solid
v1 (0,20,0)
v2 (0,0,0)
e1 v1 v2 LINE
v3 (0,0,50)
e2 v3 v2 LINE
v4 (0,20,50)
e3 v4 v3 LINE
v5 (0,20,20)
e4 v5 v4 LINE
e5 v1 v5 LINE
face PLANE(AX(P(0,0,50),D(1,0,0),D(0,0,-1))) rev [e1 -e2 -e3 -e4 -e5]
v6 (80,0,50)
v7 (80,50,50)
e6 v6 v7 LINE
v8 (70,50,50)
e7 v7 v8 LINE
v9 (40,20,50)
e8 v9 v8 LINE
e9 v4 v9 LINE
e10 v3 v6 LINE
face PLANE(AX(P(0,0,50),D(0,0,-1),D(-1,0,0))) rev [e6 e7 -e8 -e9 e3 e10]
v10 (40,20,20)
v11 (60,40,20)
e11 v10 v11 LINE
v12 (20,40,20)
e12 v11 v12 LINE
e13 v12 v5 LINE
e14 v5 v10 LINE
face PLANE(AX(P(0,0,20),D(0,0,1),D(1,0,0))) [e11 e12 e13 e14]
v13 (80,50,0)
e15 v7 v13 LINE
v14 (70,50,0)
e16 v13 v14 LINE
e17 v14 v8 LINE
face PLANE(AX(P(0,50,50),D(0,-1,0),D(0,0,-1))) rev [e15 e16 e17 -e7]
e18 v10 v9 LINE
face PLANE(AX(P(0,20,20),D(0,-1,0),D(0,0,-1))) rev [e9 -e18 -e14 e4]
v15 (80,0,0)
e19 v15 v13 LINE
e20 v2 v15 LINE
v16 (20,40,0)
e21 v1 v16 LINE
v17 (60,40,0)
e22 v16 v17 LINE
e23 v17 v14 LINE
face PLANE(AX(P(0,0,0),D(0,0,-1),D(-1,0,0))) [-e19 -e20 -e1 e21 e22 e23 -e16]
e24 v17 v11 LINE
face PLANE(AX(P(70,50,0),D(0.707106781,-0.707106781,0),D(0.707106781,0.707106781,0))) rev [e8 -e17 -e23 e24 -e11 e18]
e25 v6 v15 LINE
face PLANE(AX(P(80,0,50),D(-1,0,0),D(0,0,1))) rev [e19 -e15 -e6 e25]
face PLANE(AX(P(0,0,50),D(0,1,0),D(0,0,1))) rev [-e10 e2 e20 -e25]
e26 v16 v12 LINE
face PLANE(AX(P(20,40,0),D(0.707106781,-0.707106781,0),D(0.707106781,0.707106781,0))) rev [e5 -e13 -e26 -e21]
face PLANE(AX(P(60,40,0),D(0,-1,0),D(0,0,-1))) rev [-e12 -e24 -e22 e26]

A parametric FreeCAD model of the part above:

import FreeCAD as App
import Part
import Sketcher
from FreeCAD import Vector
Q = App.Units.Quantity

doc = App.newDocument("Part")
body = doc.addObject("PartDesign::Body", "Body")

sketch1 = doc.addObject("Sketcher::SketchObject", "Sketch")
body.addObject(sketch1)
sketch1.AttachmentSupport = (doc.XY_Plane, [""])
sketch1.MapMode = "FlatFace"
sketch1.addGeometry(Part.LineSegment(Vector(0, 50, 0), Vector(0, 0, 0)), False)
sketch1.addGeometry(Part.LineSegment(Vector(0, 0, 0), Vector(80, 0, 0)), False)
sketch1.addGeometry(Part.LineSegment(Vector(80, 0, 0), Vector(80, 50, 0)), False)
sketch1.addGeometry(Part.LineSegment(Vector(80, 50, 0), Vector(0, 50, 0)), False)
sketch1.addConstraint(Sketcher.Constraint("Coincident", 0, 2, 1, 1))
sketch1.addConstraint(Sketcher.Constraint("Coincident", 1, 2, 2, 1))
sketch1.addConstraint(Sketcher.Constraint("Coincident", 2, 2, 3, 1))
sketch1.addConstraint(Sketcher.Constraint("Coincident", 3, 2, 0, 1))
sketch1.addConstraint(Sketcher.Constraint("Vertical", 0))
sketch1.addConstraint(Sketcher.Constraint("Horizontal", 1))
sketch1.addConstraint(Sketcher.Constraint("Vertical", 2))
sketch1.addConstraint(Sketcher.Constraint("Horizontal", 3))
sketch1.addConstraint(Sketcher.Constraint("Coincident", 0, 2, -1, 1))
sketch1.addConstraint(Sketcher.Constraint("DistanceX", 1, 1, 1, 2, 80.0))
sketch1.addConstraint(Sketcher.Constraint("DistanceY", 0, 2, 0, 1, 50.0))
pad1 = doc.addObject("PartDesign::Pad", "Pad")
body.addObject(pad1)
pad1.Profile = sketch1
pad1.Length = 50

sketch2 = doc.addObject("Sketcher::SketchObject", "Sketch001")
body.addObject(sketch2)
sketch2.AttachmentSupport = (doc.XY_Plane, [""])
sketch2.MapMode = "FlatFace"
sketch2.AttachmentOffset = App.Placement(Vector(0, 0, 50), App.Rotation())
sketch2.addGeometry(Part.LineSegment(Vector(60, 40, 0), Vector(70, 50, 0)), False)
sketch2.addGeometry(Part.LineSegment(Vector(70, 50, 0), Vector(0, 50, 0)), False)
sketch2.addGeometry(Part.LineSegment(Vector(0, 50, 0), Vector(0, 20, 0)), False)
sketch2.addGeometry(Part.LineSegment(Vector(0, 20, 0), Vector(20, 40, 0)), False)
sketch2.addGeometry(Part.LineSegment(Vector(20, 40, 0), Vector(60, 40, 0)), False)
sketch2.addConstraint(Sketcher.Constraint("Coincident", 0, 2, 1, 1))
sketch2.addConstraint(Sketcher.Constraint("Coincident", 1, 2, 2, 1))
sketch2.addConstraint(Sketcher.Constraint("Coincident", 2, 2, 3, 1))
sketch2.addConstraint(Sketcher.Constraint("Coincident", 3, 2, 4, 1))
sketch2.addConstraint(Sketcher.Constraint("Coincident", 4, 2, 0, 1))
sketch2.addConstraint(Sketcher.Constraint("Horizontal", 1))
sketch2.addConstraint(Sketcher.Constraint("Vertical", 2))
sketch2.addConstraint(Sketcher.Constraint("Horizontal", 4))
sketch2.addConstraint(Sketcher.Constraint("PointOnObject", 1, 2, -2))
sketch2.addConstraint(Sketcher.Constraint("Parallel", 0, 3))
sketch2.addConstraint(Sketcher.Constraint("DistanceX", 1, 2, 1, 1, 70.0))
sketch2.addConstraint(Sketcher.Constraint("DistanceX", 4, 1, 4, 2, 40.0))
sketch2.addConstraint(Sketcher.Constraint("DistanceY", 2, 2, 2, 1, 30.0))
sketch2.addConstraint(Sketcher.Constraint("DistanceY", -1, 1, 0, 2, 50.0))
sketch2.addConstraint(Sketcher.Constraint("DistanceX", -1, 1, 3, 2, 20.0))
pocket1 = doc.addObject("PartDesign::Pocket", "Pocket")
body.addObject(pocket1)
pocket1.Profile = sketch2
pocket1.Length = 50

sketch3 = doc.addObject("Sketcher::SketchObject", "Sketch002")
body.addObject(sketch3)
sketch3.AttachmentSupport = (doc.XY_Plane, [""])
sketch3.MapMode = "FlatFace"
sketch3.AttachmentOffset = App.Placement(Vector(0, 0, 50), App.Rotation())
sketch3.addGeometry(Part.LineSegment(Vector(0, 20, 0), Vector(40, 20, 0)), False)
sketch3.addGeometry(Part.LineSegment(Vector(40, 20, 0), Vector(60, 40, 0)), False)
sketch3.addGeometry(Part.LineSegment(Vector(60, 40, 0), Vector(20, 40, 0)), False)
sketch3.addGeometry(Part.LineSegment(Vector(20, 40, 0), Vector(0, 20, 0)), False)
sketch3.addConstraint(Sketcher.Constraint("Coincident", 0, 2, 1, 1))
sketch3.addConstraint(Sketcher.Constraint("Coincident", 1, 2, 2, 1))
sketch3.addConstraint(Sketcher.Constraint("Coincident", 2, 2, 3, 1))
sketch3.addConstraint(Sketcher.Constraint("Coincident", 3, 2, 0, 1))
sketch3.addConstraint(Sketcher.Constraint("Horizontal", 0))
sketch3.addConstraint(Sketcher.Constraint("Horizontal", 2))
sketch3.addConstraint(Sketcher.Constraint("PointOnObject", 3, 2, -2))
sketch3.addConstraint(Sketcher.Constraint("Parallel", 1, 3))
sketch3.addConstraint(Sketcher.Constraint("DistanceX", 0, 1, 0, 2, 40.0))
sketch3.addConstraint(Sketcher.Constraint("Angle", 1, Q("45 deg")))
sketch3.addConstraint(Sketcher.Constraint("DistanceY", -1, 1, 0, 2, 20.0))
sketch3.addConstraint(Sketcher.Constraint("DistanceX", -1, 1, 1, 2, 60.0))
pocket2 = doc.addObject("PartDesign::Pocket", "Pocket001")
body.addObject(pocket2)
pocket2.Profile = sketch3
pocket2.Length = 30

doc.recompute()
